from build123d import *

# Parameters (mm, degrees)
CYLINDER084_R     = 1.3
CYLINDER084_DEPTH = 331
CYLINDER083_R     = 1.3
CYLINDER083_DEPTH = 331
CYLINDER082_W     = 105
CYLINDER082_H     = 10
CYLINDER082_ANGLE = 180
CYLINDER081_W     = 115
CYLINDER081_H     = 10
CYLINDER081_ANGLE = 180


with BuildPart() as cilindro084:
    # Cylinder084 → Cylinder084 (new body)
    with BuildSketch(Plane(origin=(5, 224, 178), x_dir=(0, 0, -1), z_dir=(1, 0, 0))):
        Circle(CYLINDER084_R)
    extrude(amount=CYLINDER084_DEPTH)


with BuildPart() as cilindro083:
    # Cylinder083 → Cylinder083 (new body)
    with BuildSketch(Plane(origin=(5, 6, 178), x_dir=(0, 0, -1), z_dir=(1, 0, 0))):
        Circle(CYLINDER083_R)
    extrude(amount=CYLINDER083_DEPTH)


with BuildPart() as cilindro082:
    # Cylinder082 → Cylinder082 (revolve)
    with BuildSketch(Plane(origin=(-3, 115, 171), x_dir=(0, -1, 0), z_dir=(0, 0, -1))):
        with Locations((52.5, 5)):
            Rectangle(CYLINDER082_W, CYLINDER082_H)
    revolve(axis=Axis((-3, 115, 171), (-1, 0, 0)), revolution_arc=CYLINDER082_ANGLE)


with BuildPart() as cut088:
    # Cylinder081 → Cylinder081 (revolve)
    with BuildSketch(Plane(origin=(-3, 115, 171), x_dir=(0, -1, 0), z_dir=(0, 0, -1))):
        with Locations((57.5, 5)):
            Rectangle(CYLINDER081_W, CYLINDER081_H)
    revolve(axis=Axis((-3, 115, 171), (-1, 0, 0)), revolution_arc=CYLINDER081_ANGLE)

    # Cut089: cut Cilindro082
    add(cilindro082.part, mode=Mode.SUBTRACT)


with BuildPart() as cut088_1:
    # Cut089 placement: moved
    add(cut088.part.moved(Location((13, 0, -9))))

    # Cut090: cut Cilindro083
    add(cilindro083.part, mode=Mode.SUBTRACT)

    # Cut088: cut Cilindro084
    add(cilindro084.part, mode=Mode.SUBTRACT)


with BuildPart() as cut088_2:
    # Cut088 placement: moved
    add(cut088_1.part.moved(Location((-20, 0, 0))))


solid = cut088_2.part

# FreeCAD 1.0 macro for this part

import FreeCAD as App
import Part
import Sketcher
from FreeCAD import Vector

doc = App.newDocument("Part")
params = doc.addObject("Spreadsheet::Sheet", "Params")
for row, (alias, value) in enumerate([
    ("sketch1_diameter", "2.6 mm"),
    ("pad1_length", "331 mm"),
    ("sketch2_diameter", "2.6 mm"),
    ("pad2_length", "331 mm"),
    ("sketch3_width", "10 mm"),
    ("sketch3_height", "105 mm"),
    ("revolution_angle", "180 deg"),
    ("sketch4_width", "10 mm"),
    ("sketch4_height", "115 mm"),
    ("revolution2_angle", "180 deg"),
], start=1):
    params.set(f"A{row}", alias)
    params.set(f"B{row}", "=" + value)
    params.setAlias(f"B{row}", alias)

body = doc.addObject("PartDesign::Body", "Body")

sketch1 = body.newObject("Sketcher::SketchObject", "Sketch")
sketch1.AttachmentSupport = (doc.getObject("YZ_Plane"), [""])
sketch1.MapMode = "FlatFace"
sketch1.AttachmentOffset = App.Placement(Vector(0, 0, 5), App.Rotation())
sketch1.addGeometry(Part.Circle(Vector(224, 178, 0), Vector(0, 0, 1), 1.3), False)
sketch1.addConstraint([
    Sketcher.Constraint("Diameter", 0, 2.6),
    Sketcher.Constraint("DistanceX", -1, 1, 0, 3, 224.0),
    Sketcher.Constraint("DistanceY", -1, 1, 0, 3, 178.0),
])
sketch1.setExpression("Constraints[0]", "Params.sketch1_diameter")
pad1 = body.newObject("PartDesign::Pad", "Pad")
pad1.Profile = sketch1
pad1.setExpression("Length", "Params.pad1_length")
body2 = doc.addObject("PartDesign::Body", "Body001")

sketch2 = body2.newObject("Sketcher::SketchObject", "Sketch001")
sketch2.AttachmentSupport = (doc.getObject("YZ_Plane001"), [""])
sketch2.MapMode = "FlatFace"
sketch2.AttachmentOffset = App.Placement(Vector(0, 0, 5), App.Rotation())
sketch2.addGeometry(Part.Circle(Vector(6, 178, 0), Vector(0, 0, 1), 1.3), False)
sketch2.addConstraint([
    Sketcher.Constraint("Diameter", 0, 2.6),
    Sketcher.Constraint("DistanceX", -1, 1, 0, 3, 6.0),
    Sketcher.Constraint("DistanceY", -1, 1, 0, 3, 178.0),
])
sketch2.setExpression("Constraints[0]", "Params.sketch2_diameter")
pad2 = body2.newObject("PartDesign::Pad", "Pad001")
pad2.Profile = sketch2
pad2.setExpression("Length", "Params.pad2_length")
body3 = doc.addObject("PartDesign::Body", "Body002")

sketch3 = body3.newObject("Sketcher::SketchObject", "Sketch002")
sketch3.AttachmentSupport = (doc.getObject("XY_Plane002"), [""])
sketch3.MapMode = "FlatFace"
sketch3.AttachmentOffset = App.Placement(Vector(0, 0, 171), App.Rotation())
sketch3.addGeometry([
    Part.LineSegment(Vector(-13, 115, 0), Vector(-3, 115, 0)),
    Part.LineSegment(Vector(-3, 115, 0), Vector(-3, 10, 0)),
    Part.LineSegment(Vector(-3, 10, 0), Vector(-13, 10, 0)),
    Part.LineSegment(Vector(-13, 10, 0), Vector(-13, 115, 0)),
], False)
sketch3.addGeometry(Part.LineSegment(Vector(-3, 115, 0), Vector(-13, 115, 0)), True)
sketch3.addConstraint([
    Sketcher.Constraint("Coincident", 0, 2, 1, 1),
    Sketcher.Constraint("Coincident", 1, 2, 2, 1),
    Sketcher.Constraint("Coincident", 2, 2, 3, 1),
    Sketcher.Constraint("Coincident", 3, 2, 0, 1),
    Sketcher.Constraint("Horizontal", 0),
    Sketcher.Constraint("Vertical", 1),
    Sketcher.Constraint("Horizontal", 2),
    Sketcher.Constraint("Vertical", 3),
    Sketcher.Constraint("Horizontal", 4),
    Sketcher.Constraint("Coincident", 4, 1, 0, 2),
    Sketcher.Constraint("Vertical", 2, 2, 4, 2),
    Sketcher.Constraint("DistanceX", 0, 1, 0, 2, 10.0),
    Sketcher.Constraint("DistanceY", 1, 2, 1, 1, 105.0),
    Sketcher.Constraint("DistanceX", 0, 2, -1, 1, 3.0),
    Sketcher.Constraint("DistanceY", -1, 1, 0, 2, 115.0),
])
sketch3.setExpression("Constraints[11]", "Params.sketch3_width")
sketch3.setExpression("Constraints[12]", "Params.sketch3_height")
revolution = body3.newObject("PartDesign::Revolution", "Revolution")
revolution.Profile = sketch3
revolution.ReferenceAxis = (sketch3, ["Axis0"])
revolution.setExpression("Angle", "Params.revolution_angle")
body4 = doc.addObject("PartDesign::Body", "Body003")

sketch4 = body4.newObject("Sketcher::SketchObject", "Sketch003")
sketch4.AttachmentSupport = (doc.getObject("XY_Plane003"), [""])
sketch4.MapMode = "FlatFace"
sketch4.AttachmentOffset = App.Placement(Vector(0, 0, 171), App.Rotation())
sketch4.addGeometry([
    Part.LineSegment(Vector(-13, 115, 0), Vector(-3, 115, 0)),
    Part.LineSegment(Vector(-3, 115, 0), Vector(-3, 0, 0)),
    Part.LineSegment(Vector(-3, 0, 0), Vector(-13, 0, 0)),
    Part.LineSegment(Vector(-13, 0, 0), Vector(-13, 115, 0)),
], False)
sketch4.addGeometry(Part.LineSegment(Vector(-3, 115, 0), Vector(-13, 115, 0)), True)
sketch4.addConstraint([
    Sketcher.Constraint("Coincident", 0, 2, 1, 1),
    Sketcher.Constraint("Coincident", 1, 2, 2, 1),
    Sketcher.Constraint("Coincident", 2, 2, 3, 1),
    Sketcher.Constraint("Coincident", 3, 2, 0, 1),
    Sketcher.Constraint("Horizontal", 0),
    Sketcher.Constraint("Vertical", 1),
    Sketcher.Constraint("Horizontal", 2),
    Sketcher.Constraint("Vertical", 3),
    Sketcher.Constraint("Horizontal", 4),
    Sketcher.Constraint("Coincident", 4, 1, 0, 2),
    Sketcher.Constraint("PointOnObject", 1, 2, -1),
    Sketcher.Constraint("Vertical", 2, 2, 4, 2),
    Sketcher.Constraint("DistanceX", 0, 1, 0, 2, 10.0),
    Sketcher.Constraint("DistanceY", 1, 2, 1, 1, 115.0),
    Sketcher.Constraint("DistanceX", 0, 2, -1, 1, 3.0),
])
sketch4.setExpression("Constraints[12]", "Params.sketch4_width")
sketch4.setExpression("Constraints[13]", "Params.sketch4_height")
revolution2 = body4.newObject("PartDesign::Revolution", "Revolution001")
revolution2.Profile = sketch4
revolution2.ReferenceAxis = (sketch4, ["Axis0"])
revolution2.setExpression("Angle", "Params.revolution2_angle")
doc.recompute()

boolean = body4.newObject("PartDesign::Boolean", "Boolean")
boolean.Type = "Cut"
boolean.addObjects([body3])
body5 = doc.addObject("PartDesign::Body", "Body004")
doc.recompute()

body4.Placement = App.Placement(Vector(13, 0, -9), App.Rotation(Vector(0, 0, 1), 0))
boolean2 = body5.newObject("PartDesign::Boolean", "Boolean001")
boolean2.Type = "Fuse"
boolean2.addObjects([body4])
doc.recompute()

boolean3 = body5.newObject("PartDesign::Boolean", "Boolean002")
boolean3.Type = "Cut"
boolean3.addObjects([body2])
doc.recompute()

boolean4 = body5.newObject("PartDesign::Boolean", "Boolean003")
boolean4.Type = "Cut"
boolean4.addObjects([body])
body6 = doc.addObject("PartDesign::Body", "Body005")
doc.recompute()

body5.Placement = App.Placement(Vector(-20, 0, 0), App.Rotation(Vector(0, 0, 1), 0))
boolean5 = body6.newObject("PartDesign::Boolean", "Boolean004")
boolean5.Type = "Fuse"
boolean5.addObjects([body5])

doc.recompute()
